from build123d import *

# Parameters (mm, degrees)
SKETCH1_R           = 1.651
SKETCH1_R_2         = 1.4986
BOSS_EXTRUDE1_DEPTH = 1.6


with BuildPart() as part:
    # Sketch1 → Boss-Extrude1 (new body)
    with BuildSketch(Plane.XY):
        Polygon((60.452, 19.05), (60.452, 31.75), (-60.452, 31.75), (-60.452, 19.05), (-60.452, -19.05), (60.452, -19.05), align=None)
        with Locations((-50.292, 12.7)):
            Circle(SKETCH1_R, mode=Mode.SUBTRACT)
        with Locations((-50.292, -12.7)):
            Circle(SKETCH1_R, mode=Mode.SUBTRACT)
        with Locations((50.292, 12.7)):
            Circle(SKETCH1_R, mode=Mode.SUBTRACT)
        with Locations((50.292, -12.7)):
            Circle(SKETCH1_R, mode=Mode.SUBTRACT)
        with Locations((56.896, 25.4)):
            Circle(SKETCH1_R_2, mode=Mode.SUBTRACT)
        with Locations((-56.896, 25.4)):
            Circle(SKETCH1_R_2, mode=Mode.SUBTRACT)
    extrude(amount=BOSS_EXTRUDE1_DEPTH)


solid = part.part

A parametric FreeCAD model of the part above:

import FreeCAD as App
import Part
import Sketcher
from FreeCAD import Vector
Q = App.Units.Quantity

doc = App.newDocument("Part")
body = doc.addObject("PartDesign::Body", "Body")

# Sketch on XY plane
sketch1 = body.newObject("Sketcher::SketchObject", "Sketch")
sketch1.AttachmentSupport = (doc.getObject("XY_Plane"), [""])
sketch1.MapMode = "FlatFace"
sketch1.addGeometry([
    Part.LineSegment(Vector(60.452, 31.75, 0), Vector(-60.452, 31.75, 0)),  # 0
    Part.LineSegment(Vector(-60.452, 31.75, 0), Vector(-60.452, -19.05, 0)),  # 1
    Part.LineSegment(Vector(-60.452, -19.05, 0), Vector(60.452, -19.05, 0)),  # 2
    Part.LineSegment(Vector(60.452, -19.05, 0), Vector(60.452, 31.75, 0)),  # 3
    Part.Circle(Vector(-50.292, -12.7, 0), Vector(0, 0, 1), 1.651),  # 4
    Part.Circle(Vector(50.292, -12.7, 0), Vector(0, 0, 1), 1.651),  # 5
    Part.Circle(Vector(-50.292, 12.7, 0), Vector(0, 0, 1), 1.651),  # 6
    Part.Circle(Vector(-56.896, 25.4, 0), Vector(0, 0, 1), 1.4986),  # 7
    Part.Circle(Vector(50.292, 12.7, 0), Vector(0, 0, 1), 1.651),  # 8
    Part.Circle(Vector(56.896, 25.4, 0), Vector(0, 0, 1), 1.4986),  # 9
], False)
sketch1.addConstraint([
    Sketcher.Constraint("Coincident", 0, 2, 1, 1),
    Sketcher.Constraint("Coincident", 1, 2, 2, 1),
    Sketcher.Constraint("Coincident", 2, 2, 3, 1),
    Sketcher.Constraint("Coincident", 3, 2, 0, 1),
    Sketcher.Constraint("Horizontal", 0),
    Sketcher.Constraint("Vertical", 1),
    Sketcher.Constraint("Horizontal", 2),
    Sketcher.Constraint("Vertical", 3),
    Sketcher.Constraint("Equal", 4, 5),
    Sketcher.Constraint("Equal", 5, 6),
    Sketcher.Constraint("Equal", 6, 8),
    Sketcher.Constraint("Equal", 7, 9),
    Sketcher.Constraint("Symmetric", 5, 3, 6, 3, -1, 1),
    Sketcher.Constraint("Symmetric", 4, 3, 8, 3, -1, 1),
    Sketcher.Constraint("Symmetric", 4, 3, 5, 3, -2),
    Sketcher.Constraint("Symmetric", 7, 3, 9, 3, -2),
    Sketcher.Constraint("Diameter", 4, Q("0.13 in")),
    Sketcher.Constraint("DistanceY", 1, 2, 1, 1, Q("2 in")),
    Sketcher.Constraint("Diameter", 7, Q("0.118 in")),
    Sketcher.Constraint("DistanceY", -1, 1, 7, 3, Q("1 in")),
    Sketcher.Constraint("DistanceY", 4, 3, 6, 3, Q("1 in")),
    Sketcher.Constraint("DistanceX", 0, 2, 0, 1, Q("4.76 in")),
    Sketcher.Constraint("DistanceX", 0, 2, 6, 3, Q("0.4 in")),
    Sketcher.Constraint("DistanceX", 5, 3, 2, 2, Q("0.4 in")),
    Sketcher.Constraint("DistanceX", 7, 3, -1, 1, Q("2.24 in")),
    Sketcher.Constraint("DistanceY", -1, 1, 0, 2, Q("1.25 in")),
])
pad1 = body.newObject("PartDesign::Pad", "Pad")
pad1.Profile = sketch1
pad1.Length = 1.6

doc.recompute()
